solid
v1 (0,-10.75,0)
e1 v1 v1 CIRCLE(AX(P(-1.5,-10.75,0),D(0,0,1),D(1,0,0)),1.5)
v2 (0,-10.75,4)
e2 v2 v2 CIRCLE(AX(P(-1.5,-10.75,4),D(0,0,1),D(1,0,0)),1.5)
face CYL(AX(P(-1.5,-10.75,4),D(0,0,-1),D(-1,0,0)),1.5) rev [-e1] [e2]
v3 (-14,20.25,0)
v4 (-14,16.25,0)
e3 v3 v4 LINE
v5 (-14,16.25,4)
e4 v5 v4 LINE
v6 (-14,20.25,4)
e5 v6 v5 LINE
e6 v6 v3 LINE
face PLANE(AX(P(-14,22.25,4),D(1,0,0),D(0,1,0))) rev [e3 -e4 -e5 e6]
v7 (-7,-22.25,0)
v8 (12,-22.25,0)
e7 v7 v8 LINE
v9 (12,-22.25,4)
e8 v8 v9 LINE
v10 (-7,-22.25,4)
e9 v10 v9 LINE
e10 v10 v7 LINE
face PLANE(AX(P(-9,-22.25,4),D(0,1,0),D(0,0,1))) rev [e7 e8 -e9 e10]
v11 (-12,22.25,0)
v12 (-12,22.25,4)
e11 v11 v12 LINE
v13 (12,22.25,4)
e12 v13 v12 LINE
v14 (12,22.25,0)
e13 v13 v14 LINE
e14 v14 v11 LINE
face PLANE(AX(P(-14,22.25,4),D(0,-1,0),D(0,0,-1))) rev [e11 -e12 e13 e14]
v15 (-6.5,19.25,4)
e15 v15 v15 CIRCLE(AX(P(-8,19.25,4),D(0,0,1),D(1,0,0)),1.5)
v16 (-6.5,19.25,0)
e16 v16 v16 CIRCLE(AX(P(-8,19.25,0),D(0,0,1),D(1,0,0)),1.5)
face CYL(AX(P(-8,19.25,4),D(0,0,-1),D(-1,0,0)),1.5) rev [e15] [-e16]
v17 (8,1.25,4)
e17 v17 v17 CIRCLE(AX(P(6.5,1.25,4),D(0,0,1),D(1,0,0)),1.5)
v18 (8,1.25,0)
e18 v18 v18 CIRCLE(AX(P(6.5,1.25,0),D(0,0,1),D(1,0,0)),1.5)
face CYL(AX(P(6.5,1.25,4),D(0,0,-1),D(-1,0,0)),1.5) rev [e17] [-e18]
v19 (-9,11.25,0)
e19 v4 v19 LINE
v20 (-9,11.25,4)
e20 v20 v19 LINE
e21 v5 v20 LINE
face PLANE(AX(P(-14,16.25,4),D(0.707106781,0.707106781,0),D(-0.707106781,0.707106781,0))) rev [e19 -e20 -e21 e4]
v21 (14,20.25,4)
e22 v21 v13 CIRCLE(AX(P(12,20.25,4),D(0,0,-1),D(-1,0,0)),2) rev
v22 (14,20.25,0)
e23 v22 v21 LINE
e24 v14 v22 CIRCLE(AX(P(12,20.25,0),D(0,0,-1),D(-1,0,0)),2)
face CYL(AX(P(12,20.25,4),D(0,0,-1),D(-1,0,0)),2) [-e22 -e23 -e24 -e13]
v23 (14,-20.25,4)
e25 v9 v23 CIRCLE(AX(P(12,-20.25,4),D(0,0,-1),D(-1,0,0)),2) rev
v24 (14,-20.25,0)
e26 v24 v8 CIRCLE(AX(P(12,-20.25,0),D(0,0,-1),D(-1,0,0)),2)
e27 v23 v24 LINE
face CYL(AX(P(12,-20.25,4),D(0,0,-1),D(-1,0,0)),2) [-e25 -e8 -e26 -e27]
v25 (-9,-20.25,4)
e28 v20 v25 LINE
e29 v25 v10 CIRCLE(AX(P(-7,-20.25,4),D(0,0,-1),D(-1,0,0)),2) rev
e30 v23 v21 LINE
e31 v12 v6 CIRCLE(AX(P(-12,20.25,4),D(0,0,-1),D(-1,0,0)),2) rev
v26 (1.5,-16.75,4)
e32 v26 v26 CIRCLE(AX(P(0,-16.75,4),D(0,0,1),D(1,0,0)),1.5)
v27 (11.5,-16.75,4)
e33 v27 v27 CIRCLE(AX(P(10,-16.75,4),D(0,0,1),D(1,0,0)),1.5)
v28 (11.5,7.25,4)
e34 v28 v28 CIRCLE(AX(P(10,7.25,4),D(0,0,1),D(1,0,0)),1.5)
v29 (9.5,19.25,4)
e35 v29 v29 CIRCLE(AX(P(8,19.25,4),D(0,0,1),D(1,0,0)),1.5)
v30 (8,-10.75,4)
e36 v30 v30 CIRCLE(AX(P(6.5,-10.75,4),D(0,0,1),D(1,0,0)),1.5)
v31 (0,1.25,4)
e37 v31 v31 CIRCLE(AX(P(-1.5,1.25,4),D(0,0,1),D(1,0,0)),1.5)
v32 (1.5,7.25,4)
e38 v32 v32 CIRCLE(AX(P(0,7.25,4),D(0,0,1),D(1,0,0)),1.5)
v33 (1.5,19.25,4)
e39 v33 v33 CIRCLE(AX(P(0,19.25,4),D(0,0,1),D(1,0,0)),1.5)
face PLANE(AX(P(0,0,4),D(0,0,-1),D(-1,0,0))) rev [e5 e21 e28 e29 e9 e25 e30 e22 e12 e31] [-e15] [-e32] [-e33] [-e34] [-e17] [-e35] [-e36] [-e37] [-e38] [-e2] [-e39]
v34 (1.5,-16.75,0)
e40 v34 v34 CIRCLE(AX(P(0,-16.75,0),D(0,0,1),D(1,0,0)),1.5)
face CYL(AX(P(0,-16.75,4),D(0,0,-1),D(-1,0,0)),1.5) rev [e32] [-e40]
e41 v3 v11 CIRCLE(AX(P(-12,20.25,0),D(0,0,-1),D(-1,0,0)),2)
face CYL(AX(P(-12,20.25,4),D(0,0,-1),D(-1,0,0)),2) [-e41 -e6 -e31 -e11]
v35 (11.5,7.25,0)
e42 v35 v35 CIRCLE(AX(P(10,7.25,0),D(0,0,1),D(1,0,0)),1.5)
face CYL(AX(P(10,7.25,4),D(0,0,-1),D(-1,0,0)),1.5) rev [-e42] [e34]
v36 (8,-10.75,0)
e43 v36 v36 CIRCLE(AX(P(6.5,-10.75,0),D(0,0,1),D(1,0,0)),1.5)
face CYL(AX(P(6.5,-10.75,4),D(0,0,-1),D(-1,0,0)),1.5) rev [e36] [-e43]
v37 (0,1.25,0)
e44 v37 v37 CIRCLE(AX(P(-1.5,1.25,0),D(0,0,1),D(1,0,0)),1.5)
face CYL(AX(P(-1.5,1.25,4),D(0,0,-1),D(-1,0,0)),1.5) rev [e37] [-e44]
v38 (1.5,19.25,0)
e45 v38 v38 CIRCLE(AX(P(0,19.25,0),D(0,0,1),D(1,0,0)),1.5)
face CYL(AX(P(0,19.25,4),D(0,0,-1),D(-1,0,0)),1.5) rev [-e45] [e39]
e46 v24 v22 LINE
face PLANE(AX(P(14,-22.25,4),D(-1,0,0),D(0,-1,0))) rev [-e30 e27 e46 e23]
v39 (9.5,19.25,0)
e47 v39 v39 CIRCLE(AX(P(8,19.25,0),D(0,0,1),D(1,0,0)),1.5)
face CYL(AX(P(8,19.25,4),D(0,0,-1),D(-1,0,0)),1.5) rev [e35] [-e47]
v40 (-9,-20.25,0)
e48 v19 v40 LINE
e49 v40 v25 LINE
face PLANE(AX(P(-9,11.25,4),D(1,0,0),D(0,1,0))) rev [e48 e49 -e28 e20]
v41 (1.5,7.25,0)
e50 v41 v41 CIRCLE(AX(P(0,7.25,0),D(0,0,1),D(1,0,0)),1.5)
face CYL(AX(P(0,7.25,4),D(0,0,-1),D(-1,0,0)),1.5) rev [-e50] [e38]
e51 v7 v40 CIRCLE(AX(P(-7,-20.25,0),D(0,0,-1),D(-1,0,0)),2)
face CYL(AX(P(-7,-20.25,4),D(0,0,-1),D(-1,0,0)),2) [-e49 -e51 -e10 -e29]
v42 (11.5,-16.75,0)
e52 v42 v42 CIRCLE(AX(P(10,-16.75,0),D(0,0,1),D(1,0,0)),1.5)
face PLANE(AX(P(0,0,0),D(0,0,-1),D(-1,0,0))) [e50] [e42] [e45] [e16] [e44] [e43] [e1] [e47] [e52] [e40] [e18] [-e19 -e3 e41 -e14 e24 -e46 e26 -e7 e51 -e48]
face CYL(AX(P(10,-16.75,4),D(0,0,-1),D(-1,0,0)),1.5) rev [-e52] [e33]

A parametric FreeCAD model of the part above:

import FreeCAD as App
import Part
import Sketcher
Q = App.Units.Quantity


def edges_at(feature, points):
    """Names of the edges that pass closest to the given points."""
    edges = feature.Shape.Edges
    near = lambda p: min(range(len(edges)), key=lambda i: edges[i].distToShape(Part.Vertex(*p))[0])
    return sorted({f"Edge{near(p) + 1}" for p in points})

doc = App.newDocument("Part")
body = doc.addObject("PartDesign::Body", "Body")

sketch1 = body.newObject("Sketcher::SketchObject", "Sketch")
sketch1.AttachmentSupport = (doc.getObject("XY_Plane"), [""])
sketch1.MapMode = "FlatFace"
sketch1.addGeometry(Part.LineSegment(App.Vector(14, 22.2, 0), App.Vector(-14, 22.2, 0)), False)
sketch1.addGeometry(Part.LineSegment(App.Vector(-14, 22.2, 0), App.Vector(-14, 16.2, 0)), False)
sketch1.addGeometry(Part.LineSegment(App.Vector(-14, 16.2, 0), App.Vector(-9, 11.2, 0)), False)
sketch1.addGeometry(Part.LineSegment(App.Vector(-9, 11.2, 0), App.Vector(-9, -22.2, 0)), False)
sketch1.addGeometry(Part.LineSegment(App.Vector(-9, -22.2, 0), App.Vector(14, -22.2, 0)), False)
sketch1.addGeometry(Part.LineSegment(App.Vector(14, -22.2, 0), App.Vector(14, 22.2, 0)), False)
sketch1.addGeometry(Part.Circle(App.Vector(10, -16.8, 0), App.Vector(0, 0, 1), 1.5), False)
sketch1.addGeometry(Part.Circle(App.Vector(6.5, -10.8, 0), App.Vector(0, 0, 1), 1.5), False)
sketch1.addGeometry(Part.Circle(App.Vector(0, -16.8, 0), App.Vector(0, 0, 1), 1.5), False)
sketch1.addGeometry(Part.Circle(App.Vector(-1.5, -10.8, 0), App.Vector(0, 0, 1), 1.5), False)
sketch1.addGeometry(Part.Circle(App.Vector(6.5, 1.2, 0), App.Vector(0, 0, 1), 1.5), False)
sketch1.addGeometry(Part.Circle(App.Vector(10, 7.2, 0), App.Vector(0, 0, 1), 1.5), False)
sketch1.addGeometry(Part.Circle(App.Vector(8, 19.2, 0), App.Vector(0, 0, 1), 1.5), False)
sketch1.addGeometry(Part.Circle(App.Vector(-1.5, 1.2, 0), App.Vector(0, 0, 1), 1.5), False)
sketch1.addGeometry(Part.Circle(App.Vector(0, 7.2, 0), App.Vector(0, 0, 1), 1.5), False)
sketch1.addGeometry(Part.Circle(App.Vector(0, 19.2, 0), App.Vector(0, 0, 1), 1.5), False)
sketch1.addGeometry(Part.Circle(App.Vector(-8, 19.2, 0), App.Vector(0, 0, 1), 1.5), False)
sketch1.addConstraint(Sketcher.Constraint("Coincident", 0, 2, 1, 1))
sketch1.addConstraint(Sketcher.Constraint("Coincident", 1, 2, 2, 1))
sketch1.addConstraint(Sketcher.Constraint("Coincident", 2, 2, 3, 1))
sketch1.addConstraint(Sketcher.Constraint("Coincident", 3, 2, 4, 1))
sketch1.addConstraint(Sketcher.Constraint("Coincident", 4, 2, 5, 1))
sketch1.addConstraint(Sketcher.Constraint("Coincident", 5, 2, 0, 1))
sketch1.addConstraint(Sketcher.Constraint("Horizontal", 0))
sketch1.addConstraint(Sketcher.Constraint("Vertical", 1))
sketch1.addConstraint(Sketcher.Constraint("Vertical", 3))
sketch1.addConstraint(Sketcher.Constraint("Horizontal", 4))
sketch1.addConstraint(Sketcher.Constraint("Vertical", 5))
sketch1.addConstraint(Sketcher.Constraint("Equal", 6, 7))
sketch1.addConstraint(Sketcher.Constraint("Equal", 7, 8))
sketch1.addConstraint(Sketcher.Constraint("Equal", 8, 9))
sketch1.addConstraint(Sketcher.Constraint("Equal", 9, 10))
sketch1.addConstraint(Sketcher.Constraint("Equal", 10, 11))
sketch1.addConstraint(Sketcher.Constraint("Equal", 11, 12))
sketch1.addConstraint(Sketcher.Constraint("Equal", 12, 13))
sketch1.addConstraint(Sketcher.Constraint("Equal", 13, 14))
sketch1.addConstraint(Sketcher.Constraint("Equal", 14, 15))
sketch1.addConstraint(Sketcher.Constraint("Equal", 15, 16))
sketch1.addConstraint(Sketcher.Constraint("Symmetric", 0, 2, 4, 2, -1, 1))
sketch1.addConstraint(Sketcher.Constraint("Symmetric", 12, 3, 16, 3, -2))
sketch1.addConstraint(Sketcher.Constraint("PointOnObject", 8, 3, -2))
sketch1.addConstraint(Sketcher.Constraint("PointOnObject", 14, 3, -2))
sketch1.addConstraint(Sketcher.Constraint("PointOnObject", 15, 3, -2))
sketch1.addConstraint(Sketcher.Constraint("Horizontal", 6, 3, 8, 3))
sketch1.addConstraint(Sketcher.Constraint("Horizontal", 7, 3, 9, 3))
sketch1.addConstraint(Sketcher.Constraint("Horizontal", 10, 3, 13, 3))
sketch1.addConstraint(Sketcher.Constraint("Horizontal", 11, 3, 14, 3))
sketch1.addConstraint(Sketcher.Constraint("Horizontal", 12, 3, 15, 3))
sketch1.addConstraint(Sketcher.Constraint("Vertical", 7, 3, 10, 3))
sketch1.addConstraint(Sketcher.Constraint("Vertical", 6, 3, 11, 3))
sketch1.addConstraint(Sketcher.Constraint("Vertical", 9, 3, 13, 3))
sketch1.addConstraint(Sketcher.Constraint("Diameter", 6, Q("3 mm")))
sketch1.addConstraint(Sketcher.Constraint("DistanceX", 0, 2, 0, 1, Q("28 mm")))
sketch1.addConstraint(Sketcher.Constraint("DistanceX", 4, 1, 4, 2, Q("23 mm")))
sketch1.addConstraint(Sketcher.Constraint("DistanceY", 1, 2, 1, 1, Q("6 mm")))
sketch1.addConstraint(Sketcher.Constraint("Angle", 2, Q("-45 deg")))
sketch1.addConstraint(Sketcher.Constraint("DistanceY", 3, 2, 3, 1, Q("33.5 mm")))
sketch1.addConstraint(Sketcher.Constraint("DistanceX", -1, 1, 6, 3, Q("10 mm")))
sketch1.addConstraint(Sketcher.Constraint("DistanceX", -1, 1, 12, 3, Q("8 mm")))
sketch1.addConstraint(Sketcher.Constraint("DistanceY", 6, 3, 7, 3, Q("6 mm")))
sketch1.addConstraint(Sketcher.Constraint("DistanceX", 9, 3, 7, 3, Q("8 mm")))
sketch1.addConstraint(Sketcher.Constraint("DistanceY", 7, 3, 10, 3, Q("12 mm")))
sketch1.addConstraint(Sketcher.Constraint("DistanceY", 10, 3, 11, 3, Q("6 mm")))
sketch1.addConstraint(Sketcher.Constraint("DistanceY", 11, 3, 12, 3, Q("12 mm")))
sketch1.addConstraint(Sketcher.Constraint("DistanceY", 16, 3, 0, 2, Q("3 mm")))
sketch1.addConstraint(Sketcher.Constraint("DistanceX", -1, 1, 7, 3, Q("6.5 mm")))
pad1 = body.newObject("PartDesign::Pad", "Pad")
pad1.Profile = sketch1
pad1.Length = 4
doc.recompute()

fillet = body.newObject("PartDesign::Fillet", "Fillet")
fillet.Base = (pad1, edges_at(pad1, [
    (14, -22.25, 2),
    (-9, -22.25, 2),
    (-14, 22.25, 2),
    (14, 22.25, 2),
]))
fillet.Radius = 2

doc.recompute()
